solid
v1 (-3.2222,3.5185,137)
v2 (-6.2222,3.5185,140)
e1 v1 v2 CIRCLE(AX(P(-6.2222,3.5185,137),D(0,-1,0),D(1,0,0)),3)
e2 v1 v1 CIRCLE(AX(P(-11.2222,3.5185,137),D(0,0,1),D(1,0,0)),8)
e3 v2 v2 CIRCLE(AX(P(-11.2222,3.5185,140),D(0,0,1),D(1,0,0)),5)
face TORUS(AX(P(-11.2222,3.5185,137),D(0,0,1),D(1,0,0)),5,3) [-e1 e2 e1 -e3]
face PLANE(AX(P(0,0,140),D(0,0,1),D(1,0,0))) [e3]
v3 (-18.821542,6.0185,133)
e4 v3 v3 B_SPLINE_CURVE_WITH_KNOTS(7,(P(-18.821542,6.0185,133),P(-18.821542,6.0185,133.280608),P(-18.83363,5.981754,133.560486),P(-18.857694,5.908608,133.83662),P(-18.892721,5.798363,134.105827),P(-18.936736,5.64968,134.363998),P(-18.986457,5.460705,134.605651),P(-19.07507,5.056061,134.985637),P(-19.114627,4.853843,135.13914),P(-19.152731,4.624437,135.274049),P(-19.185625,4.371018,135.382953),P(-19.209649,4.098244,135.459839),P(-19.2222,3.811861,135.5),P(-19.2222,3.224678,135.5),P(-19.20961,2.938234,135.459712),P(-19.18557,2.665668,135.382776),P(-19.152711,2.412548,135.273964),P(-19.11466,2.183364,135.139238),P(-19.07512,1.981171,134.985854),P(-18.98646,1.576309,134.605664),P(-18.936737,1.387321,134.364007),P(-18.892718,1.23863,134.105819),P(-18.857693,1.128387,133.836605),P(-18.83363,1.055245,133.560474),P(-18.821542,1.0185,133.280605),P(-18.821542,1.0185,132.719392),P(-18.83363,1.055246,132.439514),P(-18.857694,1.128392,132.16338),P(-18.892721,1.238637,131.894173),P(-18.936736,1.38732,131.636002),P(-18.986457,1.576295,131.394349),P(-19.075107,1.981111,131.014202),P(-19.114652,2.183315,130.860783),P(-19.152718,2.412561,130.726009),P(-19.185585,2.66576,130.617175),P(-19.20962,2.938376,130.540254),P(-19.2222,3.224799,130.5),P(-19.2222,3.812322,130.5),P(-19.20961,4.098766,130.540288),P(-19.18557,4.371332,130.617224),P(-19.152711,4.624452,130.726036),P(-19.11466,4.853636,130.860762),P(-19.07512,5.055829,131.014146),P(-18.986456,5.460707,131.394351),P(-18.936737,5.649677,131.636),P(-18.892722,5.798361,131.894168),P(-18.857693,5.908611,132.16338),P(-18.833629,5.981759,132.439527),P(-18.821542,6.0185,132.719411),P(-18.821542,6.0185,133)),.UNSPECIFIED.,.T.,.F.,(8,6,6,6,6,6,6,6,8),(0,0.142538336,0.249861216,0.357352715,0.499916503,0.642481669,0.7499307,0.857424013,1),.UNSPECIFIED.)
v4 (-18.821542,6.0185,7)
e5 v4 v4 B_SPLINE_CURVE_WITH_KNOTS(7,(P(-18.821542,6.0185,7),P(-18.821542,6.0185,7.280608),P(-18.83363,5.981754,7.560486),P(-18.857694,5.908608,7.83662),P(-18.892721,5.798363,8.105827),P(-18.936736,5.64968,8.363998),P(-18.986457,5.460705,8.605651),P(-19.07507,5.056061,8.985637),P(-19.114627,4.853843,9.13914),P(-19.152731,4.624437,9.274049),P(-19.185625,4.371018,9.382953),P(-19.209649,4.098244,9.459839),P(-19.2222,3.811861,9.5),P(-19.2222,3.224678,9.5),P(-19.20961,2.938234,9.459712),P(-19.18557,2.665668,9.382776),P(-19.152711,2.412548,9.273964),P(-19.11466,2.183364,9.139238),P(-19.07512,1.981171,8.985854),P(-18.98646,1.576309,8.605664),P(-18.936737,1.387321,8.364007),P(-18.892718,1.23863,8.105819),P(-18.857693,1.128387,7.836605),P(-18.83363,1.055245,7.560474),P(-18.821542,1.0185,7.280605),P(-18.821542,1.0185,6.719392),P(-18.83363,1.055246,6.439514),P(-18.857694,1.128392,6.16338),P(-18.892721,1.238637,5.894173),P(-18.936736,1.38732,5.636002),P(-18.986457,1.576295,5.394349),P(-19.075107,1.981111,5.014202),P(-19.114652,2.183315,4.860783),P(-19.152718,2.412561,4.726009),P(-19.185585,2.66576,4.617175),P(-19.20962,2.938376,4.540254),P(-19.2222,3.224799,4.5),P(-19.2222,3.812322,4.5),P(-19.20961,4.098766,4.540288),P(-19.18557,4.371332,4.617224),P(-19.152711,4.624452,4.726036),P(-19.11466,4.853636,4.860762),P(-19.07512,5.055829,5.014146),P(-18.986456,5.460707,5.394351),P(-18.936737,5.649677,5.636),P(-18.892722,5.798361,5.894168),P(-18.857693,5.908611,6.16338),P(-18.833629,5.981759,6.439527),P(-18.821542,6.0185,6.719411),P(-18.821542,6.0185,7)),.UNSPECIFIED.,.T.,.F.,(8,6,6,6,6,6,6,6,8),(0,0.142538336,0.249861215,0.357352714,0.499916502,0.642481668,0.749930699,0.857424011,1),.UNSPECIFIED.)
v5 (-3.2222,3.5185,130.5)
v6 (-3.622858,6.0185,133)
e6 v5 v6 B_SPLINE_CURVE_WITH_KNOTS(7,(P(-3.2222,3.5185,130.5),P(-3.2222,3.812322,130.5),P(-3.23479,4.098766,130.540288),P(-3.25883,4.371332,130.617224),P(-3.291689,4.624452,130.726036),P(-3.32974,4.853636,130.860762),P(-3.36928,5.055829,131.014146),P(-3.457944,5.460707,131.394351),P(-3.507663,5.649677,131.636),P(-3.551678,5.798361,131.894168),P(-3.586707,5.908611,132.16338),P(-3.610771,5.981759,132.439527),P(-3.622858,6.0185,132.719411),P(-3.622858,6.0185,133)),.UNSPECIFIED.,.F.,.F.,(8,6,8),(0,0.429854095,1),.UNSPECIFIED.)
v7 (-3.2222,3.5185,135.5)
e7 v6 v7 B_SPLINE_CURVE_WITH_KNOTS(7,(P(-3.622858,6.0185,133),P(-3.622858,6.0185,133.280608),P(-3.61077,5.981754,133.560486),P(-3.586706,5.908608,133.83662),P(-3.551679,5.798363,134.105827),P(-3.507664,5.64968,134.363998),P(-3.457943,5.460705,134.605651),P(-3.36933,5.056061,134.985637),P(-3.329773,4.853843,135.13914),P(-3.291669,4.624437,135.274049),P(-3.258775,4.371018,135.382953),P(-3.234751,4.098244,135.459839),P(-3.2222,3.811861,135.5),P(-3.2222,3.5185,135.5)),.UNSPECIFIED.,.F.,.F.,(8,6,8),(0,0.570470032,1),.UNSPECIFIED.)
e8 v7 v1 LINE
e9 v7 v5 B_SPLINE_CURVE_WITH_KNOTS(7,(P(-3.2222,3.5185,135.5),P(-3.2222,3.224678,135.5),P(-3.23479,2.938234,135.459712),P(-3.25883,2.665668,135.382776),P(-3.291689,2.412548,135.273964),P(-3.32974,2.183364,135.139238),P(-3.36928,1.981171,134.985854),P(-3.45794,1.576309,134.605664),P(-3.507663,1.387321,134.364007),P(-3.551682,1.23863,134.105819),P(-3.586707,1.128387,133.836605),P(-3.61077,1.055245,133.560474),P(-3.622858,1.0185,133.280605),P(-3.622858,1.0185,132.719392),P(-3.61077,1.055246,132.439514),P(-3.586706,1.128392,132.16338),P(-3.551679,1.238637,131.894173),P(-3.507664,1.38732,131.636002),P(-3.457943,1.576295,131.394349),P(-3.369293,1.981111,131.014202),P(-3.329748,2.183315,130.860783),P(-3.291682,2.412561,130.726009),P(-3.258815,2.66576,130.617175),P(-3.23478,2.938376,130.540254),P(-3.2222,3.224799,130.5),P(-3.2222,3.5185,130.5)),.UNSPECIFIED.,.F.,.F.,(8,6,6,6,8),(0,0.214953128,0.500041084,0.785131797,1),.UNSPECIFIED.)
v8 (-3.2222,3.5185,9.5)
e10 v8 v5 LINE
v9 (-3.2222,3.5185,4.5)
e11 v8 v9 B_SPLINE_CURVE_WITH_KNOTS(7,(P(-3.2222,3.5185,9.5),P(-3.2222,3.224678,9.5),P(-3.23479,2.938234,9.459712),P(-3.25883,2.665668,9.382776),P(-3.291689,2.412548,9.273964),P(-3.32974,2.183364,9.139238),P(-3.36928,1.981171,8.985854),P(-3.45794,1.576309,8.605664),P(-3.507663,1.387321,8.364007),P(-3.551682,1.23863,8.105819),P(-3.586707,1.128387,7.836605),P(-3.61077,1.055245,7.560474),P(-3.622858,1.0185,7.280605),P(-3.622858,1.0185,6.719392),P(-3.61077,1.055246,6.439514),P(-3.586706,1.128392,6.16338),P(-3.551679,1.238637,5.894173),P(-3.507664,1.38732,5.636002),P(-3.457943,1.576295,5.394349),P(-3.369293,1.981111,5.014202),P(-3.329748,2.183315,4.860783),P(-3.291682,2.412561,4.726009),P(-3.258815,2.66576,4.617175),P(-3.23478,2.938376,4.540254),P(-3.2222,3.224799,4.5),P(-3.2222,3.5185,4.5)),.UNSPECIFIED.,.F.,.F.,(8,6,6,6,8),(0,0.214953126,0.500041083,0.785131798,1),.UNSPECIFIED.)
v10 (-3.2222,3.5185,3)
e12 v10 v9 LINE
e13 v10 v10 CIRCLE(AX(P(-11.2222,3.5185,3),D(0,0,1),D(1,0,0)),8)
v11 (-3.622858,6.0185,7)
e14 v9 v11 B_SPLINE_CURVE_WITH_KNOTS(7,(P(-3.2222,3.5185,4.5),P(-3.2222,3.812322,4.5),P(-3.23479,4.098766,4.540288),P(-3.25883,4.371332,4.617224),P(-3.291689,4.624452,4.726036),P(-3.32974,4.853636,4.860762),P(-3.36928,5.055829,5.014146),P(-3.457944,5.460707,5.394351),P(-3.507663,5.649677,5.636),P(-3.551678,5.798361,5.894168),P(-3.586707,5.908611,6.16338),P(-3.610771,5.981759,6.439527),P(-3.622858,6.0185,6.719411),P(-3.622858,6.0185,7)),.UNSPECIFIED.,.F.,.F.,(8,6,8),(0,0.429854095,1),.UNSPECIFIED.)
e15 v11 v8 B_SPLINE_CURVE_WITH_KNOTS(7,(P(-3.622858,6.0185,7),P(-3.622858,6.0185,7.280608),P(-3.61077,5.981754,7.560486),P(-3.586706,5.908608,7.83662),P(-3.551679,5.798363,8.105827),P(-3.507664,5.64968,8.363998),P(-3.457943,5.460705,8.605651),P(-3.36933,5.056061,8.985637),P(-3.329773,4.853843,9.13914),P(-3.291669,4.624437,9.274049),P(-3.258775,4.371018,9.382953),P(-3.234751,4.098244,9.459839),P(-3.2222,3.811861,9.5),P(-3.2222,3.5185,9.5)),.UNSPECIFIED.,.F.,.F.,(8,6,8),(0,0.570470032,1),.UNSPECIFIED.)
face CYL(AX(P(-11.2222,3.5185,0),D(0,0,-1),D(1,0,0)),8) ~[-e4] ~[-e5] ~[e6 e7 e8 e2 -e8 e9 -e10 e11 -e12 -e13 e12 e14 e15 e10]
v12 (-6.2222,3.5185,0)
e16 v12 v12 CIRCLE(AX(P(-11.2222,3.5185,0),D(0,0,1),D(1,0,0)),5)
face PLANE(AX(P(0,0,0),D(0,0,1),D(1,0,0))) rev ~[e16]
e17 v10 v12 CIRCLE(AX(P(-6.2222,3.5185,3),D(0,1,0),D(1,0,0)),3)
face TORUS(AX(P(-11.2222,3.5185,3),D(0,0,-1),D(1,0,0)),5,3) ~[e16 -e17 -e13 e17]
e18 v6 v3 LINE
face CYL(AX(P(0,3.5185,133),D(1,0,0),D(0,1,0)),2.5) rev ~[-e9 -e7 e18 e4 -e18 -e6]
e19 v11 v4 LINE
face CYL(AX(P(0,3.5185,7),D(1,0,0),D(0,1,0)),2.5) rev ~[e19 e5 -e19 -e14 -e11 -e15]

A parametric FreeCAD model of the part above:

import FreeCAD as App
import Part
import Sketcher

V = App.Vector
Q = App.Units.Quantity


def edges_at(feature, points):
    """Names of the edges that pass closest to the given points."""
    edges = feature.Shape.Edges
    near = lambda p: min(range(len(edges)), key=lambda i: edges[i].distToShape(Part.Vertex(*p))[0])
    return sorted({f"Edge{near(p) + 1}" for p in points})

doc = App.newDocument("Part")
body = doc.addObject("PartDesign::Body", "Body")

# Sketch on XY plane
sketch1 = body.newObject("Sketcher::SketchObject", "Sketch")
sketch1.AttachmentSupport = (doc.getObject("XY_Plane"), [""])
sketch1.MapMode = "FlatFace"
sketch1.addGeometry(Part.Circle(V(-11, 4, 0), V(0, 0, 1), 8), False)
sketch1.addConstraint(Sketcher.Constraint("Diameter", 0, Q("16 mm")))
sketch1.addConstraint(Sketcher.Constraint("DistanceX", 0, 3, -1, 1, Q("11.2222 mm")))
sketch1.addConstraint(Sketcher.Constraint("DistanceY", -1, 1, 0, 3, Q("3.5185 mm")))
pad1 = body.newObject("PartDesign::Pad", "Pad")
pad1.Profile = sketch1
pad1.Length = 140
doc.recompute()

fillet = body.newObject("PartDesign::Fillet", "Fillet")
fillet.Base = (pad1, edges_at(pad1, [(-19.222, 3.518, 140), (-19.222, 3.518, 0)]))
fillet.Radius = 3

# Sketch on YZ plane
sketch2 = body.newObject("Sketcher::SketchObject", "Sketch001")
sketch2.AttachmentSupport = (doc.getObject("YZ_Plane"), [""])
sketch2.MapMode = "FlatFace"
sketch2.addGeometry(Part.Circle(V(3.5, 133, 0), V(0, 0, 1), 2.5), False)
sketch2.addGeometry(Part.Circle(V(3.5, 7, 0), V(0, 0, 1), 2.5), False)
sketch2.addConstraint(Sketcher.Constraint("Equal", 0, 1))
sketch2.addConstraint(Sketcher.Constraint("Vertical", 0, 3, 1, 3))
sketch2.addConstraint(Sketcher.Constraint("Diameter", 0, Q("5 mm")))
sketch2.addConstraint(Sketcher.Constraint("DistanceY", -1, 1, 1, 3, Q("7 mm")))
sketch2.addConstraint(Sketcher.Constraint("DistanceY", -1, 1, 0, 3, Q("133 mm")))
sketch2.addConstraint(Sketcher.Constraint("DistanceX", -1, 1, 0, 3, Q("3.5185 mm")))
pocket1 = body.newObject("PartDesign::Pocket", "Pocket")
pocket1.Profile = sketch2
pocket1.Length = 100

doc.recompute()
